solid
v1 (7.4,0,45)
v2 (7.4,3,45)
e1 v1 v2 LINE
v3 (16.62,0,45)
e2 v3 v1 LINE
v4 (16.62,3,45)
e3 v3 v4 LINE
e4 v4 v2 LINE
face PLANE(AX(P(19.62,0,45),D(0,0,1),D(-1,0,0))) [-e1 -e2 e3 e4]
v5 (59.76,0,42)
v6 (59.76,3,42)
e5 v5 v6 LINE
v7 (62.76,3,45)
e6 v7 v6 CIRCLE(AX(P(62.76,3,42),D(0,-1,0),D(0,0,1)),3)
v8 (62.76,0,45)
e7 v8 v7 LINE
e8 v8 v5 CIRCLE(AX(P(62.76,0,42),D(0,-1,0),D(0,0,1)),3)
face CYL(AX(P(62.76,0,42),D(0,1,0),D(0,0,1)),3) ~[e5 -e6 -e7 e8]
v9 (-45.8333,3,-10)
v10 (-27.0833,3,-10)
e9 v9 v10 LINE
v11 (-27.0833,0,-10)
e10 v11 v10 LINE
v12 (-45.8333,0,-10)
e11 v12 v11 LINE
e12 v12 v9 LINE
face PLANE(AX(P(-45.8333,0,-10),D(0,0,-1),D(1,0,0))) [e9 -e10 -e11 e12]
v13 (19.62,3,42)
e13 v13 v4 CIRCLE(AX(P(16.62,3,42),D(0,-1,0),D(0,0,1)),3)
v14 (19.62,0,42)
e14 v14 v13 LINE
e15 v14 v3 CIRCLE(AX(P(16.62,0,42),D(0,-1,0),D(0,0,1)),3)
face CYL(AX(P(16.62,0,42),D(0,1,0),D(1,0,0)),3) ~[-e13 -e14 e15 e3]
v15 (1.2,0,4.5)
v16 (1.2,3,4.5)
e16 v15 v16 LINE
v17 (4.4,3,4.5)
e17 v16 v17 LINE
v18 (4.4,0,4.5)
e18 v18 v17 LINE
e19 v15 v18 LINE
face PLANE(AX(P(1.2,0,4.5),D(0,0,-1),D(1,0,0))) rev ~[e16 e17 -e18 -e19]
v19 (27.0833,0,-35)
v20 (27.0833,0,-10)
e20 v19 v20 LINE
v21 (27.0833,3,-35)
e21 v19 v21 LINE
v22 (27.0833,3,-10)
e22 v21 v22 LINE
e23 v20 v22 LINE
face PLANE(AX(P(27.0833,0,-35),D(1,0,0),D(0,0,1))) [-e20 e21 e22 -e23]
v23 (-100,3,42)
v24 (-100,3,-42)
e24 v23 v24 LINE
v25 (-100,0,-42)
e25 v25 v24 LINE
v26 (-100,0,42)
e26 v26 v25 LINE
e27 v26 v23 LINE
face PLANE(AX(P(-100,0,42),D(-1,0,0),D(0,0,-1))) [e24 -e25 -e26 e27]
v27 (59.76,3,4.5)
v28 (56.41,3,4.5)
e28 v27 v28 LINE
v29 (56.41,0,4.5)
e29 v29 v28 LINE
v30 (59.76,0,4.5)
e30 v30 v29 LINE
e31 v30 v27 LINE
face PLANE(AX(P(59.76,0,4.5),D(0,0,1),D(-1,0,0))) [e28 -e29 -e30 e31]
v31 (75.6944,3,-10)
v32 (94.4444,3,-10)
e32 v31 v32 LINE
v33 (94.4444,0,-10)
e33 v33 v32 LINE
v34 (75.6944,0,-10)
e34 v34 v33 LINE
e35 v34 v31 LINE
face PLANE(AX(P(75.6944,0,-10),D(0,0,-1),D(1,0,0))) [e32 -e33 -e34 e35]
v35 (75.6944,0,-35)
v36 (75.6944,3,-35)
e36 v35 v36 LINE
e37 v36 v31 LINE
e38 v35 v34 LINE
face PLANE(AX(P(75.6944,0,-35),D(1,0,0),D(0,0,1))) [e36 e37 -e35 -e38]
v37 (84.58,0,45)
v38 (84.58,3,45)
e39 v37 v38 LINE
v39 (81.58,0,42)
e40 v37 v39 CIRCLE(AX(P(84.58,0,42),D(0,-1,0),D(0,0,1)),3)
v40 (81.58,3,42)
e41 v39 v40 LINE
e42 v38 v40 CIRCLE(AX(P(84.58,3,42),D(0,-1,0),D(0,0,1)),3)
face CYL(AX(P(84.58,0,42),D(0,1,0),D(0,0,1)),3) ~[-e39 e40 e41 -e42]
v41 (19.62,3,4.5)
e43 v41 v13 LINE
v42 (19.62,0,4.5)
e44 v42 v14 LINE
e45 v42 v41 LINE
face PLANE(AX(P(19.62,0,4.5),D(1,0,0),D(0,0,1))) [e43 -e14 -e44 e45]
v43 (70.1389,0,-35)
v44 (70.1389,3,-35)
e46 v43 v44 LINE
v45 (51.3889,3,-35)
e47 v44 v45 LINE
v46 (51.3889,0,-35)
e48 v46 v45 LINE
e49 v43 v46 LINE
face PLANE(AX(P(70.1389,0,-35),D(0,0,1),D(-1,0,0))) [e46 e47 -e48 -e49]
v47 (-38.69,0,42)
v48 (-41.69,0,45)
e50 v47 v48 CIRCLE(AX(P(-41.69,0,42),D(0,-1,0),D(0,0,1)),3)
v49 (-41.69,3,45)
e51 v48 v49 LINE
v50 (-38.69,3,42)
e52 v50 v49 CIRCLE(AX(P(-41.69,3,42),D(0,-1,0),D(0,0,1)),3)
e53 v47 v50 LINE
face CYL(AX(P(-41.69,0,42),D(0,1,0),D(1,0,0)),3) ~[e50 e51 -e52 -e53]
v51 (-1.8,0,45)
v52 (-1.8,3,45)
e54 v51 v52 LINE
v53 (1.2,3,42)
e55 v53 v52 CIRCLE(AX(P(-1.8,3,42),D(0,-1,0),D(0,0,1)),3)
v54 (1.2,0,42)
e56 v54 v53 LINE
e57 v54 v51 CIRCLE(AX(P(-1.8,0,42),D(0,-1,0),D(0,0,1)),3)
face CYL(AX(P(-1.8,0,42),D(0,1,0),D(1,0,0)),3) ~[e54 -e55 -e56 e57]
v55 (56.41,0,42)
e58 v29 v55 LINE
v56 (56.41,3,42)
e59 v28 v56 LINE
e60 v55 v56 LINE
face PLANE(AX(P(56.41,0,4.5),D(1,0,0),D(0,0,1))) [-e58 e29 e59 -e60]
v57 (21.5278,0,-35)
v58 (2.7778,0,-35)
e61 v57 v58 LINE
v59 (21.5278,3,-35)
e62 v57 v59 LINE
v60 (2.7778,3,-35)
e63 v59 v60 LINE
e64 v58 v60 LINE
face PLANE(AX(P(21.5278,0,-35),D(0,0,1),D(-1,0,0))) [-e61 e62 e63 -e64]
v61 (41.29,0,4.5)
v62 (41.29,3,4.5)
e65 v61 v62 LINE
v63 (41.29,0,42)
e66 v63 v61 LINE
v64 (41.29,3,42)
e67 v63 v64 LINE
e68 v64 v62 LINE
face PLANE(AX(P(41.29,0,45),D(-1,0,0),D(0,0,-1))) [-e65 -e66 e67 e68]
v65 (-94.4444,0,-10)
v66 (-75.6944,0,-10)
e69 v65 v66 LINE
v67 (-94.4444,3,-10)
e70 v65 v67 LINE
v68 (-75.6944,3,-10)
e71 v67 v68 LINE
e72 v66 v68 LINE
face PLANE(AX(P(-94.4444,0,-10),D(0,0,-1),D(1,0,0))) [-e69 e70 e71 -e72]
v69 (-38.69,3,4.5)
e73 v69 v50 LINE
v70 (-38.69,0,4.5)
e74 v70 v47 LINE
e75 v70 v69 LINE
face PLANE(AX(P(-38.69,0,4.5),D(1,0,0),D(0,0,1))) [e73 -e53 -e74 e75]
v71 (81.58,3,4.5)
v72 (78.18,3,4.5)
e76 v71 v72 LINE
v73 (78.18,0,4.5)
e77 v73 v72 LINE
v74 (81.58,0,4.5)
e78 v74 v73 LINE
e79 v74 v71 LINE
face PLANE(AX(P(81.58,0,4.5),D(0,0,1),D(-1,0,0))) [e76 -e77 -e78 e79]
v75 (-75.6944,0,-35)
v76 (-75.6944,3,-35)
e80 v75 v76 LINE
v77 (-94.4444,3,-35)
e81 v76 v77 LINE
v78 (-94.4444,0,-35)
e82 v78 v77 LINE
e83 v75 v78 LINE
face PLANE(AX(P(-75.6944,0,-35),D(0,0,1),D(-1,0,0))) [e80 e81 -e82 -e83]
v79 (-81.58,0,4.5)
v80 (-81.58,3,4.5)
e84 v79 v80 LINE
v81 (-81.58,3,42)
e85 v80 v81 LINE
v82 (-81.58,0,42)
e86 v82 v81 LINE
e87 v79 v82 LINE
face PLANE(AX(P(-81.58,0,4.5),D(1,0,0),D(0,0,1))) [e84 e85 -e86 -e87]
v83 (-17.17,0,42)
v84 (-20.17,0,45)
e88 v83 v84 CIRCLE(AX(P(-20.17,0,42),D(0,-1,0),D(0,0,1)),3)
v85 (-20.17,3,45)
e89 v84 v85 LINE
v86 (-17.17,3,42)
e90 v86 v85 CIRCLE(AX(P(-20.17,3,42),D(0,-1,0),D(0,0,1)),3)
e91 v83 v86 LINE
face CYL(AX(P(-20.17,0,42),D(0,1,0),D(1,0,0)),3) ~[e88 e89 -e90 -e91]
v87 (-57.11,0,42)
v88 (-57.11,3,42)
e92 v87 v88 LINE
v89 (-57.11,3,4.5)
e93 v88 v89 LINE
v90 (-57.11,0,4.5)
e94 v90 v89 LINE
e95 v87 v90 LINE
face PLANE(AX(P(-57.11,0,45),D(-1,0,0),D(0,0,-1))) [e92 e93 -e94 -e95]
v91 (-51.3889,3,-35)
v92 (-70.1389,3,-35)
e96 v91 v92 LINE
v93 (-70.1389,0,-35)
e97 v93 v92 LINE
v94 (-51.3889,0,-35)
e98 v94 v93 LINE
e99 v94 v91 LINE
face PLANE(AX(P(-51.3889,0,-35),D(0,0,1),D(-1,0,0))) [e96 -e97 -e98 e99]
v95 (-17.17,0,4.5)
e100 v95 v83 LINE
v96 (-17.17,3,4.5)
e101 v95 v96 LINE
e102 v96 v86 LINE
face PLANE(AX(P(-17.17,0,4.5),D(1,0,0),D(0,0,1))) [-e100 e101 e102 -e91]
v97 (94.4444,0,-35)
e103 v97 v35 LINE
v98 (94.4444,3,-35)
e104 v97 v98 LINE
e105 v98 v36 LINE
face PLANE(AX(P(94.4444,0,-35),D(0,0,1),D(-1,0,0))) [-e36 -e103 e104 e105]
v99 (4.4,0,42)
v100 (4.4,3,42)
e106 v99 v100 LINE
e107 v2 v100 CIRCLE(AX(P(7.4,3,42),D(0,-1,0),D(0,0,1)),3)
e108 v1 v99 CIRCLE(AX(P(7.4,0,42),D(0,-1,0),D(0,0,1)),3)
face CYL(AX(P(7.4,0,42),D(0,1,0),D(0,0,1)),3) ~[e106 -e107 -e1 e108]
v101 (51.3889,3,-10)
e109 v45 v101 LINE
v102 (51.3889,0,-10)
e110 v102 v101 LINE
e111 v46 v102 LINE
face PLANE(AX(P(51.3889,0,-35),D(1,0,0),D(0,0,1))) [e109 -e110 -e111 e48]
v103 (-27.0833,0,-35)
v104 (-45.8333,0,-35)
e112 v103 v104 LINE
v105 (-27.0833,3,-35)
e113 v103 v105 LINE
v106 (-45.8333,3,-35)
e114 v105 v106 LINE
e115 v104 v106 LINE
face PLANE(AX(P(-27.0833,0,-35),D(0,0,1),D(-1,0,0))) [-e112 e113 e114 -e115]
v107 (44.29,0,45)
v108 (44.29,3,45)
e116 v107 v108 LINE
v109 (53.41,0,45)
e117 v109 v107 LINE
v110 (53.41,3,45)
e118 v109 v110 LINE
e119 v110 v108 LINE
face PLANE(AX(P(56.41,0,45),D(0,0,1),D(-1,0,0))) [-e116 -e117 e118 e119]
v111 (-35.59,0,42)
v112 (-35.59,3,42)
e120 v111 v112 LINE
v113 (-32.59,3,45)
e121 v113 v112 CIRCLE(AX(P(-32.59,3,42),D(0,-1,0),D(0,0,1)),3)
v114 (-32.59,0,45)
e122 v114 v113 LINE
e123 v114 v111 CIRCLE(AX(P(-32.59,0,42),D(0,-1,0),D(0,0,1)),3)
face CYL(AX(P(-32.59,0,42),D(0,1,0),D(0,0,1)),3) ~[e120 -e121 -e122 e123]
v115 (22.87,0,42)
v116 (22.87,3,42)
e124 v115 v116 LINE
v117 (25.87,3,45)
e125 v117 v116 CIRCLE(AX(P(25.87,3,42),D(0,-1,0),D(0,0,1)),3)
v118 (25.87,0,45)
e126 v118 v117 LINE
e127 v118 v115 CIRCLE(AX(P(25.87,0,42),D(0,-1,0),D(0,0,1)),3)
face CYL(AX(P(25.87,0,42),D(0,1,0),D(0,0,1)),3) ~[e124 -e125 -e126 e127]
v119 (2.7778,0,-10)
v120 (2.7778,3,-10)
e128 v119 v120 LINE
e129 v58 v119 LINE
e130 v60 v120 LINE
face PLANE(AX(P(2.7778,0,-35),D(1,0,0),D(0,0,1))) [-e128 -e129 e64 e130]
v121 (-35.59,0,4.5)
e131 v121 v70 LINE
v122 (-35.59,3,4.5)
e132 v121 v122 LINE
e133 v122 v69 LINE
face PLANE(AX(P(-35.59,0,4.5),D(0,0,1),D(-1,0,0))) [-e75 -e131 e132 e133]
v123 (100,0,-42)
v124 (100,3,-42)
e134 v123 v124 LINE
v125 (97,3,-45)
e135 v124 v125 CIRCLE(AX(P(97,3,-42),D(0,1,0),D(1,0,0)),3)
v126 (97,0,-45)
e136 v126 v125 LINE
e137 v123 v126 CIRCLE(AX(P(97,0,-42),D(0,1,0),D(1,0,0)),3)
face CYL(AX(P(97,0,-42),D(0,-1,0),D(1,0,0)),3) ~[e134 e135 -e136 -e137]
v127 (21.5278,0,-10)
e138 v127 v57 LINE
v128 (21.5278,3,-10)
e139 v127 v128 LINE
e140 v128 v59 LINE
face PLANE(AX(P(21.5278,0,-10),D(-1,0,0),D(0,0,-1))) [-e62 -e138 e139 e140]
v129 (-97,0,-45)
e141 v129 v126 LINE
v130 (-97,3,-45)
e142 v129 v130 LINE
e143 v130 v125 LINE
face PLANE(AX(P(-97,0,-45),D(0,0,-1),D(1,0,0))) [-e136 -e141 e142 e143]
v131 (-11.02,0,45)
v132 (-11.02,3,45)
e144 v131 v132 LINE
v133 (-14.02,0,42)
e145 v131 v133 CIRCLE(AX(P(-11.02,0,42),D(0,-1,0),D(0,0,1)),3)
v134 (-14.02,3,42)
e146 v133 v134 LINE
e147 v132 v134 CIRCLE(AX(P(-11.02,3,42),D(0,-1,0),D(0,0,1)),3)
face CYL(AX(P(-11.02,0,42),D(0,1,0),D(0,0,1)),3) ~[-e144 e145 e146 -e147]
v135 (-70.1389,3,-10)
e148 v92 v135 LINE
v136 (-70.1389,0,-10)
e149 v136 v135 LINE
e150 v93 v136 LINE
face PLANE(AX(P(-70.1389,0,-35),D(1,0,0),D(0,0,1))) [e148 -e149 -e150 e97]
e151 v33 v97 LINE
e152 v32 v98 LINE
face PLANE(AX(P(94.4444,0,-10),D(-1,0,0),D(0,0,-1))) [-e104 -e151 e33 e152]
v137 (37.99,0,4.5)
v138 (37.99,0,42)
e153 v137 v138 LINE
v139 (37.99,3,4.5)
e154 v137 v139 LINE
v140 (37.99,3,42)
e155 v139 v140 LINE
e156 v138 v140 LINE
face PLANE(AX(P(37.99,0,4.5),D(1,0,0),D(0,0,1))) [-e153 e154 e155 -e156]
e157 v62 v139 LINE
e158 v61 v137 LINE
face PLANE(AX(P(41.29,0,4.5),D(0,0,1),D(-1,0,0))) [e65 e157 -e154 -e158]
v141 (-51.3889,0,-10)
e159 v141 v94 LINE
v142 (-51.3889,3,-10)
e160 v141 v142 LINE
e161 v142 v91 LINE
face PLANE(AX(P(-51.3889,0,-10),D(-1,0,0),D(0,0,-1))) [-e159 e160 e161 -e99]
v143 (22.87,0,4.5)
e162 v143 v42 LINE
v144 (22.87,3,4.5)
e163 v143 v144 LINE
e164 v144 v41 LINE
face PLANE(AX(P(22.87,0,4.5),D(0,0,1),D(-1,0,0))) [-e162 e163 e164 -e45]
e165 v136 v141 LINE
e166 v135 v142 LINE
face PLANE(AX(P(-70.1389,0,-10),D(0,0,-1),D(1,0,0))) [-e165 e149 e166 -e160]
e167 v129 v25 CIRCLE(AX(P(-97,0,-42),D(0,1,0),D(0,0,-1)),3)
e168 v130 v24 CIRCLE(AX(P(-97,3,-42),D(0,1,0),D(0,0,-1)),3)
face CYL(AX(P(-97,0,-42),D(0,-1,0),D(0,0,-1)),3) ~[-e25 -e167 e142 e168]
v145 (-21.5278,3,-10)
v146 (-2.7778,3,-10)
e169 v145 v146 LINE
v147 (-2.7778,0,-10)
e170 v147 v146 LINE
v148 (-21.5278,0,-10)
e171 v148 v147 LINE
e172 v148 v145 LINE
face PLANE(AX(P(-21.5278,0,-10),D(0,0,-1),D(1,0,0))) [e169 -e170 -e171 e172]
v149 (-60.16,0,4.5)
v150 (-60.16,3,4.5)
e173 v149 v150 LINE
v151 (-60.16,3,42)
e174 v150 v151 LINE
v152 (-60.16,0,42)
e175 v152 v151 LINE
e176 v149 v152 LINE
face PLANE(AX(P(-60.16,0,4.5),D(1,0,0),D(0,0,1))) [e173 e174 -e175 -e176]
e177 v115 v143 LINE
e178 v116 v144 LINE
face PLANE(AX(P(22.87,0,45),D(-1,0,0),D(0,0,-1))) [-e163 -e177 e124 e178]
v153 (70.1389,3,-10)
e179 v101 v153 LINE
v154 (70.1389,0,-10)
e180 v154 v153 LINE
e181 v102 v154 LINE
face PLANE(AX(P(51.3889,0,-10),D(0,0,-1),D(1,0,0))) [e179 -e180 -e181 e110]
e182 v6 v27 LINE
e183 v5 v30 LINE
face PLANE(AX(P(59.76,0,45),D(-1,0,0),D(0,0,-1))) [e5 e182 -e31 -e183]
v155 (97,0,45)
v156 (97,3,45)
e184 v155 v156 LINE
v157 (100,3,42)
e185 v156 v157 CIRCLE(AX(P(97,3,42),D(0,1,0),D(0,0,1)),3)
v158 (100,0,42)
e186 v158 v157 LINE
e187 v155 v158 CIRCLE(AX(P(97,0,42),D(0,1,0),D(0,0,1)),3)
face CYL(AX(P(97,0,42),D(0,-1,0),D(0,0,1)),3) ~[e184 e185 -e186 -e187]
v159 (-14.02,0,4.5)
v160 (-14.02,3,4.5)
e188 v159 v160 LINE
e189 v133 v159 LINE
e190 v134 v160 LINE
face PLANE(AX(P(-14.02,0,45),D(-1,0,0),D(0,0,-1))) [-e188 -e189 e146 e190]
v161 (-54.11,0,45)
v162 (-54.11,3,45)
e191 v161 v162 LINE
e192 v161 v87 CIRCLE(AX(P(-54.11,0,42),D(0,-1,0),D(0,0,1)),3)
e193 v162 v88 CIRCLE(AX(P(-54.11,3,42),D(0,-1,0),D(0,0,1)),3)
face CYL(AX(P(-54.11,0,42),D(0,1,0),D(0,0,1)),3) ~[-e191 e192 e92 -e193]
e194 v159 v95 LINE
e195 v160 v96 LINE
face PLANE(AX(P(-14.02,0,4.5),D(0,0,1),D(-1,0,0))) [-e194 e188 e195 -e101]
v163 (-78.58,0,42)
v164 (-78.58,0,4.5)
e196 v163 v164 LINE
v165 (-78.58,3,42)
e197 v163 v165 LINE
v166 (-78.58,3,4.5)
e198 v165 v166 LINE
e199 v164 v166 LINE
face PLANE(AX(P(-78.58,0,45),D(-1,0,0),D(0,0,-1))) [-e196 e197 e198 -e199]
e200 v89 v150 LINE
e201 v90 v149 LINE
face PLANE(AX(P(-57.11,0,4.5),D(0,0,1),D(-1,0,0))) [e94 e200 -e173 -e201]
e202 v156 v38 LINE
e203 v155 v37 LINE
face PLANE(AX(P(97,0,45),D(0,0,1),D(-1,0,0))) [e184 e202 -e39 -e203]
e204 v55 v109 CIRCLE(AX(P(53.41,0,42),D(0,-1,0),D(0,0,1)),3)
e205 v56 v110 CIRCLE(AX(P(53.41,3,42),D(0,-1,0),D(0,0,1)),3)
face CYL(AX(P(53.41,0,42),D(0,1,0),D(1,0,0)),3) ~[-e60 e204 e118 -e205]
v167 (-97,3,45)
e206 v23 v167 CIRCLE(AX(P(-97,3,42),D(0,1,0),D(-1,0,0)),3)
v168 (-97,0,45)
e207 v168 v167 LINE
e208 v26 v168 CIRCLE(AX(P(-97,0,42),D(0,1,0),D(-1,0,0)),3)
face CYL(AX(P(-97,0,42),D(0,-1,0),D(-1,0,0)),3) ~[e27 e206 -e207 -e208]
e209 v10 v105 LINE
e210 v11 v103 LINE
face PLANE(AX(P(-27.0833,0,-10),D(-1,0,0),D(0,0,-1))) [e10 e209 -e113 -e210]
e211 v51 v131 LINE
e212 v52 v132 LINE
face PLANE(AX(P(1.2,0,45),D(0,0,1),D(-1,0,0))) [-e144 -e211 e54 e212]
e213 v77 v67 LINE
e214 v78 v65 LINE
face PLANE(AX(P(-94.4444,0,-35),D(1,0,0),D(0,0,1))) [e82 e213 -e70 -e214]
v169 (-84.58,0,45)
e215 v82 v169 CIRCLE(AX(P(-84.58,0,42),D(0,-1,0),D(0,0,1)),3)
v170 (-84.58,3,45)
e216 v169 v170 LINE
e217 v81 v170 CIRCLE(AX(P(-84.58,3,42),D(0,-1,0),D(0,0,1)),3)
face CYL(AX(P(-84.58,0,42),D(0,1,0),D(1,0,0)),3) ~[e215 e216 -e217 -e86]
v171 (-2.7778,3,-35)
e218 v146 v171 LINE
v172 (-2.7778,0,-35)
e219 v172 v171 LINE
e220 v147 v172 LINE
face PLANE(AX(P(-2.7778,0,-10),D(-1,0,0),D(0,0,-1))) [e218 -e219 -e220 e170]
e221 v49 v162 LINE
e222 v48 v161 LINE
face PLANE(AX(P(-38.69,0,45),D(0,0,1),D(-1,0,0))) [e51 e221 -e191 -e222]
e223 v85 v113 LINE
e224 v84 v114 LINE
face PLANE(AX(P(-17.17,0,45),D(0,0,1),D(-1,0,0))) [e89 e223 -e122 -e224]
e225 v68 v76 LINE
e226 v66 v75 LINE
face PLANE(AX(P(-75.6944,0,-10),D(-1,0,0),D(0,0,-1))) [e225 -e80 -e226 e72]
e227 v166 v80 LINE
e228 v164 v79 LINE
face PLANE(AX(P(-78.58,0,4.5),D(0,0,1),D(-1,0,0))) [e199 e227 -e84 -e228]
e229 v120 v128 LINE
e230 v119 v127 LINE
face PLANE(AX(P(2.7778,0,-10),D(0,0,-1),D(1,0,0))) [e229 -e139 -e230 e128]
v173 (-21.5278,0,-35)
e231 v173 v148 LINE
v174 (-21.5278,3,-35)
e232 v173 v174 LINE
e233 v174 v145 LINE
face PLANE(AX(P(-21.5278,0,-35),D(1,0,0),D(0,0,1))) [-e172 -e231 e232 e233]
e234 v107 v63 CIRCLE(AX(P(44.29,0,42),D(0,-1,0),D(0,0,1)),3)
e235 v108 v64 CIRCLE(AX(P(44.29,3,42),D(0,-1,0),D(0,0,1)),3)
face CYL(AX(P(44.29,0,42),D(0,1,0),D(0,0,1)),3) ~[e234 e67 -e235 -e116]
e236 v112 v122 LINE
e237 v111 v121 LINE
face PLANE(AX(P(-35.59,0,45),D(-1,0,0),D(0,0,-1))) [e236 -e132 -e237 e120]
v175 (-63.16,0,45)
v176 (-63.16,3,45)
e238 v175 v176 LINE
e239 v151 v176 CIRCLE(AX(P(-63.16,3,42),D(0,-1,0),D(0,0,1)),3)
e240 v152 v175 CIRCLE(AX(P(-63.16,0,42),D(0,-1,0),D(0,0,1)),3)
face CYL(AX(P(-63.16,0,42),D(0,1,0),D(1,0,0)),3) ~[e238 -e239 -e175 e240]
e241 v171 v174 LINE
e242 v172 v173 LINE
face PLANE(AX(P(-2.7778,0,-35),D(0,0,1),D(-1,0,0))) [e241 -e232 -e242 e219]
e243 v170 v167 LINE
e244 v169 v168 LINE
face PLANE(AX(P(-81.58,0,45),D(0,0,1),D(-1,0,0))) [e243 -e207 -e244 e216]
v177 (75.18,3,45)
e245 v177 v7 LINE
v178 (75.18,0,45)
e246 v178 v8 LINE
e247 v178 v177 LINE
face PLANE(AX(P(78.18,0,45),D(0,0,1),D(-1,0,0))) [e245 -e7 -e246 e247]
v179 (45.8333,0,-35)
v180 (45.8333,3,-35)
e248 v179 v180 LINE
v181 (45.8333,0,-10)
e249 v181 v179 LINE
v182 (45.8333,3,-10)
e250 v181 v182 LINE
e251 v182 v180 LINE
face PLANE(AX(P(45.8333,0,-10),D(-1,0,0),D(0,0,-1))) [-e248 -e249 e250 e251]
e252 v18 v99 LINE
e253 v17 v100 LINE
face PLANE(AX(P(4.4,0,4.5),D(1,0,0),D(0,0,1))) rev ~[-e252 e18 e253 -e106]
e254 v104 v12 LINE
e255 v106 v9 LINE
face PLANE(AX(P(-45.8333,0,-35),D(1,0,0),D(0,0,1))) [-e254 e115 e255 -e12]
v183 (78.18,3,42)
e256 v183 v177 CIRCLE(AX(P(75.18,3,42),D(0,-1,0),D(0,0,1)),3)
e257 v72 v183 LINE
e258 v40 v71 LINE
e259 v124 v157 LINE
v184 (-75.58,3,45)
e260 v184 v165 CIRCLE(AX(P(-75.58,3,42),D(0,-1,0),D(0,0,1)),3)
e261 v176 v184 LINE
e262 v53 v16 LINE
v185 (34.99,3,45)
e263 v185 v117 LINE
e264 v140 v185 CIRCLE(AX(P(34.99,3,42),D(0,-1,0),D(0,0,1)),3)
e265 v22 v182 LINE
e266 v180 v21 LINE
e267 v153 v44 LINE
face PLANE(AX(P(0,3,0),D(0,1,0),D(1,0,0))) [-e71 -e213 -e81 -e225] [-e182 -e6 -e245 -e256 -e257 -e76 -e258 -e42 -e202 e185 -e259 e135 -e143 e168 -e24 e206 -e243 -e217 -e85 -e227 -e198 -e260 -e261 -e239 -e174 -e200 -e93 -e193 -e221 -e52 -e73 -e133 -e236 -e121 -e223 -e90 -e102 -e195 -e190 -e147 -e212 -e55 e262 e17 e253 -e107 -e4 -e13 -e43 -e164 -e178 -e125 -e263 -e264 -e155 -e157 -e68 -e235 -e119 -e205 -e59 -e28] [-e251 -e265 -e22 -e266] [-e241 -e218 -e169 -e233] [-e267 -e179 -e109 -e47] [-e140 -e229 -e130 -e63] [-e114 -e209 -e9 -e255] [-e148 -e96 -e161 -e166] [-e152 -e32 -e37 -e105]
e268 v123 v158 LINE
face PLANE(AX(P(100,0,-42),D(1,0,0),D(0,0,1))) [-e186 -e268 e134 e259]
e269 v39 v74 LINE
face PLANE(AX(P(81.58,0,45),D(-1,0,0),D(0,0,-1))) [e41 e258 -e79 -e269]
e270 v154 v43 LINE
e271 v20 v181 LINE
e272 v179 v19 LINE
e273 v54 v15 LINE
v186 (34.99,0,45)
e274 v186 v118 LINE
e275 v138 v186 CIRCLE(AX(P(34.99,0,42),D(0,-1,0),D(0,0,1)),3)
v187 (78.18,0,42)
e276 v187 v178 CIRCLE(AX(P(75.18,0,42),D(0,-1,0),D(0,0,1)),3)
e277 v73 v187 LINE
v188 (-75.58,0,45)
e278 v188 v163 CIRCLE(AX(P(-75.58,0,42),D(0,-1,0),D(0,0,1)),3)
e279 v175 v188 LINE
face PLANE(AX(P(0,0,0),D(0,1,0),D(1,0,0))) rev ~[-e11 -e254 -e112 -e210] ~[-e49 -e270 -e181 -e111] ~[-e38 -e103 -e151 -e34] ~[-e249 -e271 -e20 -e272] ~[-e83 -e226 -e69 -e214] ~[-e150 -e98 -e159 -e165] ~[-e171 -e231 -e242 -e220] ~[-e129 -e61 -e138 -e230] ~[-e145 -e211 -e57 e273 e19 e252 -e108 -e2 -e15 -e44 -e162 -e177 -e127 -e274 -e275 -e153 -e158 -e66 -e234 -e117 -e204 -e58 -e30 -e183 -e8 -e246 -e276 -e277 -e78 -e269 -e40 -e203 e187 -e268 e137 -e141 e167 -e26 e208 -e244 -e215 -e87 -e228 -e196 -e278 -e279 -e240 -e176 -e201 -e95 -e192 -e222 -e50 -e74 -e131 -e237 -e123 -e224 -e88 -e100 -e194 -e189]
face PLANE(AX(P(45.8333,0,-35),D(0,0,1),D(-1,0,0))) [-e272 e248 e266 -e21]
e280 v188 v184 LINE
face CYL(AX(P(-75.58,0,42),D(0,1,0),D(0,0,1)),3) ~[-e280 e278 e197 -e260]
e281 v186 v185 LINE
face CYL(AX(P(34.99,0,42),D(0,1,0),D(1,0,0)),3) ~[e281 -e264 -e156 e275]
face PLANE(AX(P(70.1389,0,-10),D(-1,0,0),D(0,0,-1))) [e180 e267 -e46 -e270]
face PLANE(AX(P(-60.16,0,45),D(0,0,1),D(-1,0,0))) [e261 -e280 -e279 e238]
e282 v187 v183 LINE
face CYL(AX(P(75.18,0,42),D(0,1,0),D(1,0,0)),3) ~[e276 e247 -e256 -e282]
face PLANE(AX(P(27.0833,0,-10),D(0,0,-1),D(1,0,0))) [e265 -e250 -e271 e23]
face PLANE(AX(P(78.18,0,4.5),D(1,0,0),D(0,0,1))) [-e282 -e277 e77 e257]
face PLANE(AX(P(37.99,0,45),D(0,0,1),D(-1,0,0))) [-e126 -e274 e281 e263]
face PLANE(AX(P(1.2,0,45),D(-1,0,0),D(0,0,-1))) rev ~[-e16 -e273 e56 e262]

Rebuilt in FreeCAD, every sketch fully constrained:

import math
import FreeCAD as App
import Part
import Sketcher

V = App.Vector
Q = App.Units.Quantity


def edges_at(feature, points):
    """Names of the edges that pass closest to the given points."""
    edges = feature.Shape.Edges
    near = lambda p: min(range(len(edges)), key=lambda i: edges[i].distToShape(Part.Vertex(*p))[0])
    return sorted({f"Edge{near(p) + 1}" for p in points})

doc = App.newDocument("Part")
body = doc.addObject("PartDesign::Body", "Body")

# Sketch on XZ plane
sketch1 = doc.addObject("Sketcher::SketchObject", "Sketch")
body.addObject(sketch1)
sketch1.AttachmentSupport = (doc.XZ_Plane, [""])
sketch1.MapMode = "FlatFace"
sketch1.addGeometry([
    Part.LineSegment(V(97, -45, 0), V(-97, -45, 0)),  # 0
    Part.ArcOfCircle(Part.Circle(V(-97, -42, 0), V(0, 0, 1), 3), math.radians(180), math.radians(270)),  # 1
    Part.LineSegment(V(-100, -42, 0), V(-100, 42, 0)),  # 2
    Part.ArcOfCircle(Part.Circle(V(-97, 42, 0), V(0, 0, 1), 3), math.radians(90), math.radians(180)),  # 3
    Part.LineSegment(V(-97, 45, 0), V(-81.6, 45, 0)),  # 4
    Part.LineSegment(V(-81.6, 45, 0), V(-81.6, 4.5, 0)),  # 5
    Part.LineSegment(V(-81.6, 4.5, 0), V(-78.6, 4.5, 0)),  # 6
    Part.LineSegment(V(-78.6, 4.5, 0), V(-78.6, 45, 0)),  # 7
    Part.LineSegment(V(-78.6, 45, 0), V(-60.2, 45, 0)),  # 8
    Part.LineSegment(V(-60.2, 45, 0), V(-60.2, 4.5, 0)),  # 9
    Part.LineSegment(V(-60.2, 4.5, 0), V(-57.1, 4.5, 0)),  # 10
    Part.LineSegment(V(-57.1, 4.5, 0), V(-57.1, 45, 0)),  # 11
    Part.LineSegment(V(-57.1, 45, 0), V(-38.7, 45, 0)),  # 12
    Part.LineSegment(V(-38.7, 45, 0), V(-38.7, 4.5, 0)),  # 13
    Part.LineSegment(V(-38.7, 4.5, 0), V(-35.6, 4.5, 0)),  # 14
    Part.LineSegment(V(-35.6, 4.5, 0), V(-35.6, 45, 0)),  # 15
    Part.LineSegment(V(-35.6, 45, 0), V(-17.2, 45, 0)),  # 16
    Part.LineSegment(V(-17.2, 45, 0), V(-17.2, 4.5, 0)),  # 17
    Part.LineSegment(V(-17.2, 4.5, 0), V(-14, 4.5, 0)),  # 18
    Part.LineSegment(V(-14, 4.5, 0), V(-14, 45, 0)),  # 19
    Part.LineSegment(V(-14, 45, 0), V(1.2, 45, 0)),  # 20
    Part.LineSegment(V(1.2, 45, 0), V(1.2, 4.5, 0)),  # 21
    Part.LineSegment(V(1.2, 4.5, 0), V(4.4, 4.5, 0)),  # 22
    Part.LineSegment(V(4.4, 4.5, 0), V(4.4, 45, 0)),  # 23
    Part.LineSegment(V(4.4, 45, 0), V(19.6, 45, 0)),  # 24
    Part.LineSegment(V(19.6, 45, 0), V(19.6, 4.5, 0)),  # 25
    Part.LineSegment(V(19.6, 4.5, 0), V(22.9, 4.5, 0)),  # 26
    Part.LineSegment(V(22.9, 4.5, 0), V(22.9, 45, 0)),  # 27
    Part.LineSegment(V(22.9, 45, 0), V(38, 45, 0)),  # 28
    Part.LineSegment(V(38, 45, 0), V(38, 4.5, 0)),  # 29
    Part.LineSegment(V(38, 4.5, 0), V(41.3, 4.5, 0)),  # 30
    Part.LineSegment(V(41.3, 4.5, 0), V(41.3, 45, 0)),  # 31
    Part.LineSegment(V(41.3, 45, 0), V(56.4, 45, 0)),  # 32
    Part.LineSegment(V(56.4, 45, 0), V(56.4, 4.5, 0)),  # 33
    Part.LineSegment(V(56.4, 4.5, 0), V(59.8, 4.5, 0)),  # 34
    Part.LineSegment(V(59.8, 4.5, 0), V(59.8, 45, 0)),  # 35
    Part.LineSegment(V(59.8, 45, 0), V(78.2, 45, 0)),  # 36
    Part.LineSegment(V(78.2, 45, 0), V(78.2, 4.5, 0)),  # 37
    Part.LineSegment(V(78.2, 4.5, 0), V(81.6, 4.5, 0)),  # 38
    Part.LineSegment(V(81.6, 4.5, 0), V(81.6, 45, 0)),  # 39
    Part.LineSegment(V(81.6, 45, 0), V(97, 45, 0)),  # 40
    Part.ArcOfCircle(Part.Circle(V(97, 42, 0), V(0, 0, 1), 3), math.radians(0), math.radians(90)),  # 41
    Part.LineSegment(V(100, 42, 0), V(100, -42, 0)),  # 42
    Part.ArcOfCircle(Part.Circle(V(97, -42, 0), V(0, 0, 1), 3), math.radians(-90), math.radians(0)),  # 43
    Part.LineSegment(V(-75.7, -10, 0), V(-94.4, -10, 0)),  # 44
    Part.LineSegment(V(-94.4, -10, 0), V(-94.4, -35, 0)),  # 45
    Part.LineSegment(V(-94.4, -35, 0), V(-75.7, -35, 0)),  # 46
    Part.LineSegment(V(-75.7, -35, 0), V(-75.7, -10, 0)),  # 47
    Part.LineSegment(V(-51.4, -10, 0), V(-70.1, -10, 0)),  # 48
    Part.LineSegment(V(-70.1, -10, 0), V(-70.1, -35, 0)),  # 49
    Part.LineSegment(V(-70.1, -35, 0), V(-51.4, -35, 0)),  # 50
    Part.LineSegment(V(-51.4, -35, 0), V(-51.4, -10, 0)),  # 51
    Part.LineSegment(V(-27.1, -10, 0), V(-45.8, -10, 0)),  # 52
    Part.LineSegment(V(-45.8, -10, 0), V(-45.8, -35, 0)),  # 53
    Part.LineSegment(V(-45.8, -35, 0), V(-27.1, -35, 0)),  # 54
    Part.LineSegment(V(-27.1, -35, 0), V(-27.1, -10, 0)),  # 55
    Part.LineSegment(V(-2.8, -10, 0), V(-21.5, -10, 0)),  # 56
    Part.LineSegment(V(-21.5, -10, 0), V(-21.5, -35, 0)),  # 57
    Part.LineSegment(V(-21.5, -35, 0), V(-2.8, -35, 0)),  # 58
    Part.LineSegment(V(-2.8, -35, 0), V(-2.8, -10, 0)),  # 59
    Part.LineSegment(V(21.5, -10, 0), V(2.8, -10, 0)),  # 60
    Part.LineSegment(V(2.8, -10, 0), V(2.8, -35, 0)),  # 61
    Part.LineSegment(V(2.8, -35, 0), V(21.5, -35, 0)),  # 62
    Part.LineSegment(V(21.5, -35, 0), V(21.5, -10, 0)),  # 63
    Part.LineSegment(V(45.8, -10, 0), V(27.1, -10, 0)),  # 64
    Part.LineSegment(V(27.1, -10, 0), V(27.1, -35, 0)),  # 65
    Part.LineSegment(V(27.1, -35, 0), V(45.8, -35, 0)),  # 66
    Part.LineSegment(V(45.8, -35, 0), V(45.8, -10, 0)),  # 67
    Part.LineSegment(V(70.1, -10, 0), V(51.4, -10, 0)),  # 68
    Part.LineSegment(V(51.4, -10, 0), V(51.4, -35, 0)),  # 69
    Part.LineSegment(V(51.4, -35, 0), V(70.1, -35, 0)),  # 70
    Part.LineSegment(V(70.1, -35, 0), V(70.1, -10, 0)),  # 71
    Part.LineSegment(V(94.4, -10, 0), V(75.7, -10, 0)),  # 72
    Part.LineSegment(V(75.7, -10, 0), V(75.7, -35, 0)),  # 73
    Part.LineSegment(V(75.7, -35, 0), V(94.4, -35, 0)),  # 74
    Part.LineSegment(V(94.4, -35, 0), V(94.4, -10, 0)),  # 75
], False)
sketch1.addConstraint([
    Sketcher.Constraint("Tangent", 0, 2, 1, 2),
    Sketcher.Constraint("Tangent", 1, 1, 2, 1),
    Sketcher.Constraint("Tangent", 2, 2, 3, 2),
    Sketcher.Constraint("Tangent", 3, 1, 4, 1),
    Sketcher.Constraint("Coincident", 4, 2, 5, 1),
    Sketcher.Constraint("Coincident", 5, 2, 6, 1),
    Sketcher.Constraint("Coincident", 6, 2, 7, 1),
    Sketcher.Constraint("Coincident", 7, 2, 8, 1),
    Sketcher.Constraint("Coincident", 8, 2, 9, 1),
    Sketcher.Constraint("Coincident", 9, 2, 10, 1),
    Sketcher.Constraint("Coincident", 10, 2, 11, 1),
    Sketcher.Constraint("Coincident", 11, 2, 12, 1),
    Sketcher.Constraint("Coincident", 12, 2, 13, 1),
    Sketcher.Constraint("Coincident", 13, 2, 14, 1),
    Sketcher.Constraint("Coincident", 14, 2, 15, 1),
    Sketcher.Constraint("Coincident", 15, 2, 16, 1),
    Sketcher.Constraint("Coincident", 16, 2, 17, 1),
    Sketcher.Constraint("Coincident", 17, 2, 18, 1),
    Sketcher.Constraint("Coincident", 18, 2, 19, 1),
    Sketcher.Constraint("Coincident", 19, 2, 20, 1),
    Sketcher.Constraint("Coincident", 20, 2, 21, 1),
    Sketcher.Constraint("Coincident", 21, 2, 22, 1),
    Sketcher.Constraint("Coincident", 22, 2, 23, 1),
    Sketcher.Constraint("Coincident", 23, 2, 24, 1),
    Sketcher.Constraint("Coincident", 24, 2, 25, 1),
    Sketcher.Constraint("Coincident", 25, 2, 26, 1),
    Sketcher.Constraint("Coincident", 26, 2, 27, 1),
    Sketcher.Constraint("Coincident", 27, 2, 28, 1),
    Sketcher.Constraint("Coincident", 28, 2, 29, 1),
    Sketcher.Constraint("Coincident", 29, 2, 30, 1),
    Sketcher.Constraint("Coincident", 30, 2, 31, 1),
    Sketcher.Constraint("Coincident", 31, 2, 32, 1),
    Sketcher.Constraint("Coincident", 32, 2, 33, 1),
    Sketcher.Constraint("Coincident", 33, 2, 34, 1),
    Sketcher.Constraint("Coincident", 34, 2, 35, 1),
    Sketcher.Constraint("Coincident", 35, 2, 36, 1),
    Sketcher.Constraint("Coincident", 36, 2, 37, 1),
    Sketcher.Constraint("Coincident", 37, 2, 38, 1),
    Sketcher.Constraint("Coincident", 38, 2, 39, 1),
    Sketcher.Constraint("Coincident", 39, 2, 40, 1),
    Sketcher.Constraint("Tangent", 40, 2, 41, 2),
    Sketcher.Constraint("Tangent", 41, 1, 42, 1),
    Sketcher.Constraint("Tangent", 42, 2, 43, 2),
    Sketcher.Constraint("Tangent", 43, 1, 0, 1),
    Sketcher.Constraint("Coincident", 44, 2, 45, 1),
    Sketcher.Constraint("Coincident", 45, 2, 46, 1),
    Sketcher.Constraint("Coincident", 46, 2, 47, 1),
    Sketcher.Constraint("Coincident", 47, 2, 44, 1),
    Sketcher.Constraint("Coincident", 48, 2, 49, 1),
    Sketcher.Constraint("Coincident", 49, 2, 50, 1),
    Sketcher.Constraint("Coincident", 50, 2, 51, 1),
    Sketcher.Constraint("Coincident", 51, 2, 48, 1),
    Sketcher.Constraint("Coincident", 52, 2, 53, 1),
    Sketcher.Constraint("Coincident", 53, 2, 54, 1),
    Sketcher.Constraint("Coincident", 54, 2, 55, 1),
    Sketcher.Constraint("Coincident", 55, 2, 52, 1),
    Sketcher.Constraint("Coincident", 56, 2, 57, 1),
    Sketcher.Constraint("Coincident", 57, 2, 58, 1),
    Sketcher.Constraint("Coincident", 58, 2, 59, 1),
    Sketcher.Constraint("Coincident", 59, 2, 56, 1),
    Sketcher.Constraint("Coincident", 60, 2, 61, 1),
    Sketcher.Constraint("Coincident", 61, 2, 62, 1),
    Sketcher.Constraint("Coincident", 62, 2, 63, 1),
    Sketcher.Constraint("Coincident", 63, 2, 60, 1),
    Sketcher.Constraint("Coincident", 64, 2, 65, 1),
    Sketcher.Constraint("Coincident", 65, 2, 66, 1),
    Sketcher.Constraint("Coincident", 66, 2, 67, 1),
    Sketcher.Constraint("Coincident", 67, 2, 64, 1),
    Sketcher.Constraint("Coincident", 68, 2, 69, 1),
    Sketcher.Constraint("Coincident", 69, 2, 70, 1),
    Sketcher.Constraint("Coincident", 70, 2, 71, 1),
    Sketcher.Constraint("Coincident", 71, 2, 68, 1),
    Sketcher.Constraint("Coincident", 72, 2, 73, 1),
    Sketcher.Constraint("Coincident", 73, 2, 74, 1),
    Sketcher.Constraint("Coincident", 74, 2, 75, 1),
    Sketcher.Constraint("Coincident", 75, 2, 72, 1),
    Sketcher.Constraint("Horizontal", 0),
    Sketcher.Constraint("Vertical", 2),
    Sketcher.Constraint("Horizontal", 4),
    Sketcher.Constraint("Vertical", 5),
    Sketcher.Constraint("Horizontal", 6),
    Sketcher.Constraint("Vertical", 7),
    Sketcher.Constraint("Horizontal", 8),
    Sketcher.Constraint("Vertical", 9),
    Sketcher.Constraint("Horizontal", 10),
    Sketcher.Constraint("Vertical", 11),
    Sketcher.Constraint("Horizontal", 12),
    Sketcher.Constraint("Vertical", 13),
    Sketcher.Constraint("Horizontal", 14),
    Sketcher.Constraint("Vertical", 15),
    Sketcher.Constraint("Horizontal", 16),
    Sketcher.Constraint("Vertical", 17),
    Sketcher.Constraint("Horizontal", 18),
    Sketcher.Constraint("Vertical", 19),
    Sketcher.Constraint("Horizontal", 20),
    Sketcher.Constraint("Vertical", 21),
    Sketcher.Constraint("Horizontal", 22),
    Sketcher.Constraint("Vertical", 23),
    Sketcher.Constraint("Horizontal", 24),
    Sketcher.Constraint("Vertical", 25),
    Sketcher.Constraint("Horizontal", 26),
    Sketcher.Constraint("Vertical", 27),
    Sketcher.Constraint("Horizontal", 28),
    Sketcher.Constraint("Vertical", 29),
    Sketcher.Constraint("Horizontal", 30),
    Sketcher.Constraint("Vertical", 31),
    Sketcher.Constraint("Horizontal", 32),
    Sketcher.Constraint("Vertical", 33),
    Sketcher.Constraint("Horizontal", 34),
    Sketcher.Constraint("Vertical", 35),
    Sketcher.Constraint("Horizontal", 36),
    Sketcher.Constraint("Vertical", 37),
    Sketcher.Constraint("Horizontal", 38),
    Sketcher.Constraint("Vertical", 39),
    Sketcher.Constraint("Horizontal", 40),
    Sketcher.Constraint("Vertical", 42),
    Sketcher.Constraint("Horizontal", 44),
    Sketcher.Constraint("Vertical", 45),
    Sketcher.Constraint("Horizontal", 46),
    Sketcher.Constraint("Vertical", 47),
    Sketcher.Constraint("Horizontal", 48),
    Sketcher.Constraint("Vertical", 49),
    Sketcher.Constraint("Horizontal", 50),
    Sketcher.Constraint("Vertical", 51),
    Sketcher.Constraint("Horizontal", 52),
    Sketcher.Constraint("Vertical", 53),
    Sketcher.Constraint("Horizontal", 54),
    Sketcher.Constraint("Vertical", 55),
    Sketcher.Constraint("Horizontal", 56),
    Sketcher.Constraint("Vertical", 57),
    Sketcher.Constraint("Horizontal", 58),
    Sketcher.Constraint("Vertical", 59),
    Sketcher.Constraint("Horizontal", 60),
    Sketcher.Constraint("Vertical", 61),
    Sketcher.Constraint("Horizontal", 62),
    Sketcher.Constraint("Vertical", 63),
    Sketcher.Constraint("Horizontal", 64),
    Sketcher.Constraint("Vertical", 65),
    Sketcher.Constraint("Horizontal", 66),
    Sketcher.Constraint("Vertical", 67),
    Sketcher.Constraint("Horizontal", 68),
    Sketcher.Constraint("Vertical", 69),
    Sketcher.Constraint("Horizontal", 70),
    Sketcher.Constraint("Vertical", 71),
    Sketcher.Constraint("Horizontal", 72),
    Sketcher.Constraint("Vertical", 73),
    Sketcher.Constraint("Horizontal", 74),
    Sketcher.Constraint("Vertical", 75),
    Sketcher.Constraint("Equal", 1, 3),
    Sketcher.Constraint("Equal", 3, 41),
    Sketcher.Constraint("Equal", 41, 43),
    Sketcher.Constraint("Symmetric", 1, 3, 41, 3, -1, 1),
    Sketcher.Constraint("Symmetric", 5, 2, 38, 2, -2),
    Sketcher.Constraint("Symmetric", 59, 2, 60, 2, -2),
    Sketcher.Constraint("Symmetric", 57, 2, 62, 2, -2),
    Sketcher.Constraint("Symmetric", 55, 2, 64, 2, -2),
    Sketcher.Constraint("Symmetric", 53, 2, 66, 2, -2),
    Sketcher.Constraint("Symmetric", 51, 2, 68, 2, -2),
    Sketcher.Constraint("Symmetric", 49, 2, 70, 2, -2),
    Sketcher.Constraint("Symmetric", 47, 2, 72, 2, -2),
    Sketcher.Constraint("Symmetric", 45, 2, 74, 2, -2),
    Sketcher.Constraint("Horizontal", 3, 3, 41, 3),
    Sketcher.Constraint("Horizontal", 4, 2, 7, 2),
    Sketcher.Constraint("Horizontal", 6, 2, 9, 2),
    Sketcher.Constraint("Horizontal", 8, 2, 11, 2),
    Sketcher.Constraint("Horizontal", 10, 2, 13, 2),
    Sketcher.Constraint("Horizontal", 12, 2, 15, 2),
    Sketcher.Constraint("Horizontal", 14, 2, 17, 2),
    Sketcher.Constraint("Horizontal", 16, 2, 19, 2),
    Sketcher.Constraint("Horizontal", 18, 2, 21, 2),
    Sketcher.Constraint("Horizontal", 20, 2, 23, 2),
    Sketcher.Constraint("Horizontal", 22, 2, 25, 2),
    Sketcher.Constraint("Horizontal", 24, 2, 27, 2),
    Sketcher.Constraint("Horizontal", 26, 2, 29, 2),
    Sketcher.Constraint("Horizontal", 28, 2, 31, 2),
    Sketcher.Constraint("Horizontal", 30, 2, 33, 2),
    Sketcher.Constraint("Horizontal", 32, 2, 35, 2),
    Sketcher.Constraint("Horizontal", 47, 2, 48, 2),
    Sketcher.Constraint("Horizontal", 46, 2, 49, 2),
    Sketcher.Constraint("Horizontal", 51, 2, 52, 2),
    Sketcher.Constraint("Horizontal", 50, 2, 53, 2),
    Sketcher.Constraint("Horizontal", 55, 2, 56, 2),
    Sketcher.Constraint("Horizontal", 54, 2, 57, 2),
    Sketcher.Constraint("Equal", 8, 12),
    Sketcher.Constraint("Equal", 12, 16),
    Sketcher.Constraint("Equal", 20, 24),
    Sketcher.Constraint("Equal", 28, 32),
    Sketcher.Constraint("Equal", 16, 36),
    Sketcher.Constraint("Equal", 46, 48),
    Sketcher.Constraint("Equal", 50, 52),
    Sketcher.Constraint("Equal", 54, 56),
    Sketcher.Constraint("Radius", 1, Q("3 mm")),
    Sketcher.Constraint("DistanceX", 6, 1, 6, 2, Q("3 mm")),
    Sketcher.Constraint("DistanceX", 14, 1, 14, 2, Q("3.1 mm")),
    Sketcher.Constraint("DistanceX", 22, 1, 22, 2, Q("3.2 mm")),
    Sketcher.Constraint("DistanceX", 30, 1, 30, 2, Q("3.3 mm")),
    Sketcher.Constraint("DistanceX", 38, 1, 38, 2, Q("3.4 mm")),
    Sketcher.Constraint("DistanceY", 5, 2, 5, 1, Q("40.5 mm")),
    Sketcher.Constraint("DistanceY", 44, 2, -1, 1, Q("10 mm")),
    Sketcher.Constraint("DistanceX", 10, 1, 10, 2, Q("3.05 mm")),
    Sketcher.Constraint("DistanceX", 18, 1, 18, 2, Q("3.15 mm")),
    Sketcher.Constraint("DistanceX", 26, 1, 26, 2, Q("3.25 mm")),
    Sketcher.Constraint("DistanceX", 34, 1, 34, 2, Q("3.35 mm")),
    Sketcher.Constraint("DistanceX", 44, 2, 44, 1, Q("18.75 mm")),
    Sketcher.Constraint("DistanceX", 0, 2, 0, 1, Q("194 mm")),
    Sketcher.Constraint("DistanceY", 2, 1, 2, 2, Q("84 mm")),
    Sketcher.Constraint("DistanceY", 45, 2, 45, 1, Q("25 mm")),
    Sketcher.Constraint("DistanceX", 4, 1, 4, 2, Q("15.42 mm")),
    Sketcher.Constraint("DistanceX", 8, 1, 8, 2, Q("18.42 mm")),
    Sketcher.Constraint("DistanceX", 20, 1, 20, 2, Q("15.22 mm")),
    Sketcher.Constraint("DistanceX", 48, 2, -1, 1, Q("70.139 mm")),
    Sketcher.Constraint("DistanceX", 44, 2, -1, 1, Q("94.4444 mm")),
    Sketcher.Constraint("DistanceX", 52, 2, -1, 1, Q("45.8333 mm")),
    Sketcher.Constraint("DistanceX", 56, 2, -1, 1, Q("21.5278 mm")),
])
pad1 = doc.addObject("PartDesign::Pad", "Pad")
body.addObject(pad1)
pad1.Profile = sketch1
pad1.Length = 3
pad1.Reversed = True
doc.recompute()

fillet = doc.addObject("PartDesign::Fillet", "Fillet")
body.addObject(fillet)
fillet.Base = (pad1, edges_at(pad1, [
    (-81.58, 1.5, 45),
    (-78.58, 1.5, 45),
    (-60.16, 1.5, 45),
    (-57.11, 1.5, 45),
    (-35.59, 1.5, 45),
    (-38.69, 1.5, 45),
    (-14.02, 1.5, 45),
    (-17.17, 1.5, 45),
    (1.2, 1.5, 45),
    (4.4, 1.5, 45),
    (19.62, 1.5, 45),
    (22.87, 1.5, 45),
    (37.99, 1.5, 45),
    (41.29, 1.5, 45),
    (56.41, 1.5, 45),
    (59.76, 1.5, 45),
    (78.18, 1.5, 45),
    (81.58, 1.5, 45),
]))
fillet.Radius = 3

doc.recompute()
